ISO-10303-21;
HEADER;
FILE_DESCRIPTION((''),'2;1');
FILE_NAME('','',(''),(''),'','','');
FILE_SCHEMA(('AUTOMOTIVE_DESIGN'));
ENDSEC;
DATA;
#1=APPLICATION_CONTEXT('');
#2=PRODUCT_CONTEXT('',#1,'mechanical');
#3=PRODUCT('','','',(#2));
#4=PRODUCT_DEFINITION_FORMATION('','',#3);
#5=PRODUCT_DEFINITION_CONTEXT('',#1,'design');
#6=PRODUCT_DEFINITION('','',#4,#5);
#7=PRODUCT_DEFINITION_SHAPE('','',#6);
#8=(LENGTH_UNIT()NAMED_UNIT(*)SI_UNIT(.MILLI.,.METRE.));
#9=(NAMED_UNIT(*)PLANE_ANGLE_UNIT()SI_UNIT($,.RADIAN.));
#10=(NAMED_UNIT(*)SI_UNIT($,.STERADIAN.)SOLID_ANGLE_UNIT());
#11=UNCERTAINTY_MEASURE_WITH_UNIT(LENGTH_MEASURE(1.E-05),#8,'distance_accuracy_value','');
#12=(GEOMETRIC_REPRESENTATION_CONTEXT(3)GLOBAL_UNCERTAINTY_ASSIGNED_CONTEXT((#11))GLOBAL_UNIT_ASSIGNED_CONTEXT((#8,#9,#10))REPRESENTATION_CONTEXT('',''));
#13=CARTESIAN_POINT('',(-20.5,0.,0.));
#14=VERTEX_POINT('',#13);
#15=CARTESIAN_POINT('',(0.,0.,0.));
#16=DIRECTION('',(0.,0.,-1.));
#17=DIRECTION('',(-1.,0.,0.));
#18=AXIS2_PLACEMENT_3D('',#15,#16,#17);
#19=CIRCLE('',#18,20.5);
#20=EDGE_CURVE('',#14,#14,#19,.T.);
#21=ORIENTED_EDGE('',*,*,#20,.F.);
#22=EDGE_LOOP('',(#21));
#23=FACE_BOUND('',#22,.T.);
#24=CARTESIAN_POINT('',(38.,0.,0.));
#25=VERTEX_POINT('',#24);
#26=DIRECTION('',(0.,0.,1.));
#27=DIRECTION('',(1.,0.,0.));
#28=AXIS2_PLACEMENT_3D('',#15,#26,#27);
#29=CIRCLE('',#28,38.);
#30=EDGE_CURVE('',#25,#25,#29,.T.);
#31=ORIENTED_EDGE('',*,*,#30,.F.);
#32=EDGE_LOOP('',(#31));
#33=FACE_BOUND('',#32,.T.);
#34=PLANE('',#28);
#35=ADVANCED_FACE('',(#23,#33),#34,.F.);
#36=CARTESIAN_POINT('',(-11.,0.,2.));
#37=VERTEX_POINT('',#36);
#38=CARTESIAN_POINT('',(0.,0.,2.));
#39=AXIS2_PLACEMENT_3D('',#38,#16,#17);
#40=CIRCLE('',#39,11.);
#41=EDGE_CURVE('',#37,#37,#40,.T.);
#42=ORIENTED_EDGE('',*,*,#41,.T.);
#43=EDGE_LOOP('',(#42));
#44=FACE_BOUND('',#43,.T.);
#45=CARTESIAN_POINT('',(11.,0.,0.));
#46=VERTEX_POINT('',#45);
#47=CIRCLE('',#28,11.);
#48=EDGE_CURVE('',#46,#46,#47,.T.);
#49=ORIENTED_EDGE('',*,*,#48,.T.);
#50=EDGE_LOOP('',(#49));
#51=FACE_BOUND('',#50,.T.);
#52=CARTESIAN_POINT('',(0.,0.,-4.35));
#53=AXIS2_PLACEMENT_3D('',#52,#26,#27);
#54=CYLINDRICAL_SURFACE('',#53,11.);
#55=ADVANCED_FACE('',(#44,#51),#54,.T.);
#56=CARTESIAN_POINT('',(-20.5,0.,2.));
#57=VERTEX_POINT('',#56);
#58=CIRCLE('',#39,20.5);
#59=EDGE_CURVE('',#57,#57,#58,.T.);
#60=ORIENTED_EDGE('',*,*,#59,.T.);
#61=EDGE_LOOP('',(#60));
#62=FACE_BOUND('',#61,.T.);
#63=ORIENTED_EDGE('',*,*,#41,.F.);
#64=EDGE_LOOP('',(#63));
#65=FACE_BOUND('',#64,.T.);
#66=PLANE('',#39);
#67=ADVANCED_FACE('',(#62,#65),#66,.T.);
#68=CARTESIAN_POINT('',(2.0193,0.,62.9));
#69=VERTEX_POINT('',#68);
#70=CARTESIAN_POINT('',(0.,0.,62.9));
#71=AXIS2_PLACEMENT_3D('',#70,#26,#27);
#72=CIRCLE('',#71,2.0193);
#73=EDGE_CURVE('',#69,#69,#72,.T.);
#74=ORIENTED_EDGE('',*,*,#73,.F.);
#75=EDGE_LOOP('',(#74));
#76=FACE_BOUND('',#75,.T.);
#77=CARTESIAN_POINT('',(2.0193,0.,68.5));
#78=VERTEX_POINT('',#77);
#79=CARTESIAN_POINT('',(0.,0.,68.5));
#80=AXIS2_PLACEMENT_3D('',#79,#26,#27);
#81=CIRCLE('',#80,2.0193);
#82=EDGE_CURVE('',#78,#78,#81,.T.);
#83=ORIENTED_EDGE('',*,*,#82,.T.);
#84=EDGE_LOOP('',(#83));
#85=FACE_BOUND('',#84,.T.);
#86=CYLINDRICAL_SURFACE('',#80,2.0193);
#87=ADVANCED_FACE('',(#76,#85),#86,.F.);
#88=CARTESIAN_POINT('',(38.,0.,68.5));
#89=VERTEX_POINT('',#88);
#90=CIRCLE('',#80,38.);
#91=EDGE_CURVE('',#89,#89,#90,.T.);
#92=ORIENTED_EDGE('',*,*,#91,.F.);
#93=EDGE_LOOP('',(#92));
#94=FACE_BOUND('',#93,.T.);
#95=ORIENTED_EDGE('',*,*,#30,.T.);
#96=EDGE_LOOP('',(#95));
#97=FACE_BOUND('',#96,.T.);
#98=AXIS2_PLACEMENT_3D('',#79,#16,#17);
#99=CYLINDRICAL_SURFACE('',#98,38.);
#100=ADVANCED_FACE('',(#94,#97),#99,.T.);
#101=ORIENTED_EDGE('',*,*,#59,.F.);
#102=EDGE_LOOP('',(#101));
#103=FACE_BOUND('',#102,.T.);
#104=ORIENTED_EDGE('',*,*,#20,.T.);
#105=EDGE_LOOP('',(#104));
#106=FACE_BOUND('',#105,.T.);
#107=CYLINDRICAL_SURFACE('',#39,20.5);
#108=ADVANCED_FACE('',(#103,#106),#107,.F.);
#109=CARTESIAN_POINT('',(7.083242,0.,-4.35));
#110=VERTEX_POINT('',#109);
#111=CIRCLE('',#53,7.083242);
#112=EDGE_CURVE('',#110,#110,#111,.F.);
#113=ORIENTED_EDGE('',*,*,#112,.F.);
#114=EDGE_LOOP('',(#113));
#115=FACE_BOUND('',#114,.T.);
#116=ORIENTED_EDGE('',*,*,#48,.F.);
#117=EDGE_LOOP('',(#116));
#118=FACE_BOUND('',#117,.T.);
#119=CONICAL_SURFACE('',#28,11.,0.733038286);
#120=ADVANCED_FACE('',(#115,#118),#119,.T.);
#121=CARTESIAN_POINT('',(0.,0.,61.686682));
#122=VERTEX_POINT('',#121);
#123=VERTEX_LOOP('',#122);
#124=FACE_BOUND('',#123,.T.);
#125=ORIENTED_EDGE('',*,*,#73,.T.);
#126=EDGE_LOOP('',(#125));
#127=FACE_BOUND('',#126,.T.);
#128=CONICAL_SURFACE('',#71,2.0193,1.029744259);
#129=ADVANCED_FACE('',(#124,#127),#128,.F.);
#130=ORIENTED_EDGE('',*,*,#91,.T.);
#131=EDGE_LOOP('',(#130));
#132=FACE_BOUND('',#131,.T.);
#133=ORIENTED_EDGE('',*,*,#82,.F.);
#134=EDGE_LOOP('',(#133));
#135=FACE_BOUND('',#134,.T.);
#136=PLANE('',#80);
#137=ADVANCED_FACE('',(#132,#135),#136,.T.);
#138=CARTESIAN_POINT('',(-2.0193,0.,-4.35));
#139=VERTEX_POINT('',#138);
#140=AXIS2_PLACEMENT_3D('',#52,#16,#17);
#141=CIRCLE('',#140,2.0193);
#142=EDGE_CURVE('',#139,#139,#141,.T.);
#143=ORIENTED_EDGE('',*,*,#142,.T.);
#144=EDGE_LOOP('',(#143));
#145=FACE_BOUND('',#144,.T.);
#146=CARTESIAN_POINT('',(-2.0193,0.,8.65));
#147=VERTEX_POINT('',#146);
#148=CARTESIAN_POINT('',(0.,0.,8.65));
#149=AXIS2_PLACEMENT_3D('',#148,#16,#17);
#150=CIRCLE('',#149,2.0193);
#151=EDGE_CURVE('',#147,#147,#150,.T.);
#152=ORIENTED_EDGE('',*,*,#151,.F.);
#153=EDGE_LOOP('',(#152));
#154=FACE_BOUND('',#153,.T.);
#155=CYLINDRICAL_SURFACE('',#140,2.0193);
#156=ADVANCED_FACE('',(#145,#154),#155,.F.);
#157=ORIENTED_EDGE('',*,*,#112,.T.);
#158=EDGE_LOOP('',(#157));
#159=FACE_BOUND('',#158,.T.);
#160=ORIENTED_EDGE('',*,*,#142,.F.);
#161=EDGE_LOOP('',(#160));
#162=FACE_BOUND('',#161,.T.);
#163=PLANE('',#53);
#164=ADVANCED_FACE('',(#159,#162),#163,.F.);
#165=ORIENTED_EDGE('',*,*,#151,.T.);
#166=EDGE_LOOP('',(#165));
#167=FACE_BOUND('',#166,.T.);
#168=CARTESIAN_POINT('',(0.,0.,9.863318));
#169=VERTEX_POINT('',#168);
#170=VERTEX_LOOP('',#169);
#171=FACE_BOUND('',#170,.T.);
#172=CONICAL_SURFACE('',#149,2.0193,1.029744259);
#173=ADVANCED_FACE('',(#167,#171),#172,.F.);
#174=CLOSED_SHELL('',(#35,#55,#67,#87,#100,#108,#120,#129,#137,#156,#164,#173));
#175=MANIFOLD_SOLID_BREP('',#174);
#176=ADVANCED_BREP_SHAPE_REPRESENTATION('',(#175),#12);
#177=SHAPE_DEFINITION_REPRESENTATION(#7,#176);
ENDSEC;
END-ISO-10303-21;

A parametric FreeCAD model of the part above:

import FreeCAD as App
import Part
import Sketcher

V = App.Vector
Q = App.Units.Quantity


def edges_at(feature, points):
    """Names of the edges that pass closest to the given points."""
    edges = feature.Shape.Edges
    near = lambda p: min(range(len(edges)), key=lambda i: edges[i].distToShape(Part.Vertex(*p))[0])
    return sorted({f"Edge{near(p) + 1}" for p in points})

doc = App.newDocument("Part")
body = doc.addObject("PartDesign::Body", "Body")

sketch1 = body.newObject("Sketcher::SketchObject", "Sketch")
sketch1.AttachmentSupport = (doc.getObject("XY_Plane"), [""])
sketch1.MapMode = "FlatFace"
sketch1.addGeometry(Part.Circle(V(0, 0, 0), V(0, 0, 1), 38), False)
sketch1.addConstraint([
    Sketcher.Constraint("Coincident", 0, 3, -1, 1),
    Sketcher.Constraint("Diameter", 0, Q("76 mm")),
])
pad1 = body.newObject("PartDesign::Pad", "Pad")
pad1.Profile = sketch1
pad1.Length = 68.5

sketch2 = body.newObject("Sketcher::SketchObject", "Sketch001")
sketch2.AttachmentSupport = (doc.getObject("XY_Plane"), [""])
sketch2.MapMode = "FlatFace"
sketch2.addGeometry(Part.Circle(V(0, 0, 0), V(0, 0, 1), 20), False)
sketch2.addConstraint([
    Sketcher.Constraint("Coincident", 0, 3, -1, 1),
    Sketcher.Constraint("Diameter", 0, Q("41 mm")),
])
pocket1 = body.newObject("PartDesign::Pocket", "Pocket")
pocket1.Profile = sketch2
pocket1.Length = 2
pocket1.Reversed = True

sketch3 = body.newObject("Sketcher::SketchObject", "Sketch002")
sketch3.AttachmentSupport = (doc.getObject("XY_Plane"), [""])
sketch3.MapMode = "FlatFace"
sketch3.AttachmentOffset = App.Placement(V(0, 0, 2), App.Rotation())
sketch3.addGeometry(Part.Circle(V(0, 0, 0), V(0, 0, 1), 11), False)
sketch3.addConstraint([
    Sketcher.Constraint("Coincident", 0, 3, -1, 1),
    Sketcher.Constraint("Diameter", 0, Q("22 mm")),
])
pad2 = body.newObject("PartDesign::Pad", "Pad001")
pad2.Profile = sketch3
pad2.Length = 6.35
pad2.Reversed = True
doc.recompute()

chamfer = body.newObject("PartDesign::Chamfer", "Chamfer")
chamfer.Base = (pad2, edges_at(pad2, [(-11, 0, -4.35)]))
chamfer.ChamferType = "Two distances"
chamfer.Size = 4.35
chamfer.Size2 = 3.916758

sketch4 = body.newObject("Sketcher::SketchObject", "Sketch003")
sketch4.AttachmentSupport = (doc.getObject("XY_Plane"), [""])
sketch4.MapMode = "FlatFace"
sketch4.AttachmentOffset = App.Placement(V(0, 0, 68.5), App.Rotation())
sketch4.addGeometry(Part.Circle(V(0, 0, 0), V(0, 0, 1), 2), False)
sketch4.addConstraint([
    Sketcher.Constraint("Coincident", 0, 3, -1, 1),
    Sketcher.Constraint("Diameter", 0, Q("4.0386 mm")),
])
doc.recompute()
hole = body.newObject("PartDesign::Hole", "Hole")
hole.Profile = sketch4
hole.ThreadType = "None"
hole.Diameter = 4.0386
hole.DepthType = "Dimension"
hole.Depth = 5.6
hole.DrillPoint = "Angled"
hole.DrillPointAngle = 118

sketch5 = body.newObject("Sketcher::SketchObject", "Sketch004")
sketch5.AttachmentSupport = (doc.getObject("XY_Plane"), [""])
sketch5.MapMode = "FlatFace"
sketch5.AttachmentOffset = App.Placement(V(0, 0, -4.35), App.Rotation())
sketch5.addGeometry(Part.Circle(V(0, 0, 0), V(0, 0, 1), 2), False)
sketch5.addConstraint([
    Sketcher.Constraint("Coincident", 0, 3, -1, 1),
    Sketcher.Constraint("Diameter", 0, Q("4.0386 mm")),
])
doc.recompute()
hole2 = body.newObject("PartDesign::Hole", "Hole001")
hole2.Profile = sketch5
hole2.ThreadType = "None"
hole2.Diameter = 4.0386
hole2.DepthType = "Dimension"
hole2.Depth = 13
hole2.DrillPoint = "Angled"
hole2.DrillPointAngle = 118
hole2.Reversed = True

doc.recompute()
